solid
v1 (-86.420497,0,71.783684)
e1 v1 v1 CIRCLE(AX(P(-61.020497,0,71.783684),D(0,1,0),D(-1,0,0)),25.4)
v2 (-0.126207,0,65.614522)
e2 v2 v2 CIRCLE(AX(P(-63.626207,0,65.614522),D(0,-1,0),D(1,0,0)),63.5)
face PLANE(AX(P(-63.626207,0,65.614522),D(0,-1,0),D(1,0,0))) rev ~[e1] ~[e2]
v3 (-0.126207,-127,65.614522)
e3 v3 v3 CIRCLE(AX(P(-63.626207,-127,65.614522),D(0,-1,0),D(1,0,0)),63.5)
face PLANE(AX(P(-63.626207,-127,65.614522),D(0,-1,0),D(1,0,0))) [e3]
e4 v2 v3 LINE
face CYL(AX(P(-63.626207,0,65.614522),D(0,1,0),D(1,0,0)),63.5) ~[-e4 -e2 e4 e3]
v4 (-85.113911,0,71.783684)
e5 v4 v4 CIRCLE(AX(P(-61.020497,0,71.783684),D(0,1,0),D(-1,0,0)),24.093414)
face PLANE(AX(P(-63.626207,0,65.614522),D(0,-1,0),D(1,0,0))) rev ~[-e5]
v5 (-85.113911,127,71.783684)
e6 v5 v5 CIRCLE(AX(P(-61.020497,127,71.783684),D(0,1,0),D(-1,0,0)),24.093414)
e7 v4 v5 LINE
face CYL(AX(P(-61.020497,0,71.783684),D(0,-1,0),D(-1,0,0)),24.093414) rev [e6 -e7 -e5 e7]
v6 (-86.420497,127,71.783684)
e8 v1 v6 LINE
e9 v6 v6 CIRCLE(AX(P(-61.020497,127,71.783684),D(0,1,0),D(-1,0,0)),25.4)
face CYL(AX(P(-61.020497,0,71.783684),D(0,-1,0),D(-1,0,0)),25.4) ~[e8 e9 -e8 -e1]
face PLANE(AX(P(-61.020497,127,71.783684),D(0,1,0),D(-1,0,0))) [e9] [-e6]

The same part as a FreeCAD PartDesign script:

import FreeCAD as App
import Part
import Sketcher
from FreeCAD import Vector
Q = App.Units.Quantity

doc = App.newDocument("Part")
body = doc.addObject("PartDesign::Body", "Body")

# Sketch on XZ plane
sketch1 = body.newObject("Sketcher::SketchObject", "Sketch")
sketch1.AttachmentSupport = (doc.getObject("XZ_Plane"), [""])
sketch1.MapMode = "FlatFace"
sketch1.addGeometry(Part.Circle(Vector(-64, 66, 0), Vector(0, 0, 1), 64), False)
sketch1.addConstraint([
    Sketcher.Constraint("Diameter", 0, Q("5 in")),
    Sketcher.Constraint("DistanceY", -1, 1, 0, 3, Q("65.614522 mm")),
    Sketcher.Constraint("DistanceX", 0, 3, -1, 1, Q("63.626207 mm")),
])
pad1 = body.newObject("PartDesign::Pad", "Pad")
pad1.Profile = sketch1
pad1.Length = Q("5 in")

# Sketch on XZ plane
sketch2 = body.newObject("Sketcher::SketchObject", "Sketch001")
sketch2.AttachmentSupport = (doc.getObject("XZ_Plane"), [""])
sketch2.MapMode = "FlatFace"
sketch2.addGeometry([
    Part.Circle(Vector(-61, 72, 0), Vector(0, 0, 1), 25),
    Part.Circle(Vector(-61, 72, 0), Vector(0, 0, 1), 24),
], False)
sketch2.addConstraint([
    Sketcher.Constraint("Coincident", 1, 3, 0, 3),
    Sketcher.Constraint("Diameter", 0, Q("2 in")),
    Sketcher.Constraint("Diameter", 1, Q("48.186828 mm")),
    Sketcher.Constraint("DistanceX", 0, 3, -1, 1, Q("61.020497 mm")),
    Sketcher.Constraint("DistanceY", -1, 1, 0, 3, Q("71.783684 mm")),
])
pad2 = body.newObject("PartDesign::Pad", "Pad001")
pad2.Profile = sketch2
pad2.Length = Q("5 in")
pad2.Reversed = True

doc.recompute()
